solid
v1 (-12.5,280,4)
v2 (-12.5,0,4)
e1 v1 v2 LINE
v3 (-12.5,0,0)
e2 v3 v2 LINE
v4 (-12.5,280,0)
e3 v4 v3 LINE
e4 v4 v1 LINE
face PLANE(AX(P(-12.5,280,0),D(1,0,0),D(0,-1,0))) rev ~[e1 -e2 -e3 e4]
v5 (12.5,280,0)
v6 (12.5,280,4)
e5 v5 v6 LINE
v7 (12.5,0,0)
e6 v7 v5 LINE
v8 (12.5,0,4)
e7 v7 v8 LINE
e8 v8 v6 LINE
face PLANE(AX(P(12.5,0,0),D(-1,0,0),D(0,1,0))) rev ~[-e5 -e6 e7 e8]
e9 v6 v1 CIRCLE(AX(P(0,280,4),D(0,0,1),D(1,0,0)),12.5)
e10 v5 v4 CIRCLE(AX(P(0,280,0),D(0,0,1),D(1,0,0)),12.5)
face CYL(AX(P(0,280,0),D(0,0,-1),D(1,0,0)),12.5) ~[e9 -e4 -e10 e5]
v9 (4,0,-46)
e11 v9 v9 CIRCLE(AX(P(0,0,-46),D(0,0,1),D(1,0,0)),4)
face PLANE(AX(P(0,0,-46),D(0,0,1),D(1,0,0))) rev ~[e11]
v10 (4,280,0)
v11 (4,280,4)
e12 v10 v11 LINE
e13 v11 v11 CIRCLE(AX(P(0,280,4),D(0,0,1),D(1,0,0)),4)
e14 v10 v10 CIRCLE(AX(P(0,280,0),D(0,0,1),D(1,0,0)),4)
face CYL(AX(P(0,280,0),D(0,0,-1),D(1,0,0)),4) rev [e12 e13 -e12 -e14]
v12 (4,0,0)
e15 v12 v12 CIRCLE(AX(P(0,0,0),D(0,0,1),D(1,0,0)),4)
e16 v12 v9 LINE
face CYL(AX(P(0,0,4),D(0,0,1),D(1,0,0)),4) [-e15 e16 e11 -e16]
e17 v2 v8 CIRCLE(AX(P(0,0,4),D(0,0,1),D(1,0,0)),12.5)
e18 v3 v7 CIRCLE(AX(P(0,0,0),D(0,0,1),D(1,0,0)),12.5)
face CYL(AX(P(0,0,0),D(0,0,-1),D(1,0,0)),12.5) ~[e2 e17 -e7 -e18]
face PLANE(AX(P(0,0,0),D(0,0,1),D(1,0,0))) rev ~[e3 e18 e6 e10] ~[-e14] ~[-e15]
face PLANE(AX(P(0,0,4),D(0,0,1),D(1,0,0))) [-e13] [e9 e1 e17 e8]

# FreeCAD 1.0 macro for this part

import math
import FreeCAD as App
import Part
import Sketcher

doc = App.newDocument("Part")
params = doc.addObject("Spreadsheet::Sheet", "Params")
for row, (alias, value) in enumerate([
    ("sketch1_diameter", "8 mm"),
    ("sketch1_radius", "12.5 mm"),
    ("sketch1_height", "280 mm"),
    ("pad1_length", "4 mm"),
    ("sketch2_diameter", "8 mm"),
    ("pad2_length", "50 mm"),
], start=1):
    params.set(f"A{row}", alias)
    params.set(f"B{row}", "=" + value)
    params.setAlias(f"B{row}", alias)

body = doc.addObject("PartDesign::Body", "Body")

sketch1 = body.newObject("Sketcher::SketchObject", "Sketch")
sketch1.AttachmentSupport = (doc.getObject("XY_Plane"), [""])
sketch1.MapMode = "FlatFace"
sketch1.addGeometry(Part.ArcOfCircle(Part.Circle(App.Vector(0, 0, 0), App.Vector(0, 0, 1), 12.5), math.radians(180), math.radians(360)), False)
sketch1.addGeometry(Part.LineSegment(App.Vector(12.5, 0, 0), App.Vector(12.5, 280, 0)), False)
sketch1.addGeometry(Part.ArcOfCircle(Part.Circle(App.Vector(0, 280, 0), App.Vector(0, 0, 1), 12.5), math.radians(0), math.radians(180)), False)
sketch1.addGeometry(Part.LineSegment(App.Vector(-12.5, 280, 0), App.Vector(-12.5, 0, 0)), False)
sketch1.addGeometry(Part.Circle(App.Vector(0, 0, 0), App.Vector(0, 0, 1), 4), False)
sketch1.addGeometry(Part.Circle(App.Vector(0, 280, 0), App.Vector(0, 0, 1), 4), False)
sketch1.addConstraint(Sketcher.Constraint("Tangent", 0, 2, 1, 1))
sketch1.addConstraint(Sketcher.Constraint("Tangent", 1, 2, 2, 1))
sketch1.addConstraint(Sketcher.Constraint("Tangent", 2, 2, 3, 1))
sketch1.addConstraint(Sketcher.Constraint("Tangent", 3, 2, 0, 1))
sketch1.addConstraint(Sketcher.Constraint("Vertical", 1))
sketch1.addConstraint(Sketcher.Constraint("Vertical", 3))
sketch1.addConstraint(Sketcher.Constraint("Coincident", 0, 3, -1, 1))
sketch1.addConstraint(Sketcher.Constraint("Coincident", 4, 3, -1, 1))
sketch1.addConstraint(Sketcher.Constraint("Coincident", 5, 3, 2, 3))
sketch1.addConstraint(Sketcher.Constraint("Equal", 4, 5))
sketch1.addConstraint(Sketcher.Constraint("Diameter", 4, 8.0))
sketch1.addConstraint(Sketcher.Constraint("Radius", 0, 12.5))
sketch1.addConstraint(Sketcher.Constraint("DistanceY", 1, 1, 1, 2, 280.0))
sketch1.setExpression("Constraints[10]", "Params.sketch1_diameter")
sketch1.setExpression("Constraints[11]", "Params.sketch1_radius")
sketch1.setExpression("Constraints[12]", "Params.sketch1_height")
pad1 = body.newObject("PartDesign::Pad", "Pad")
pad1.Profile = sketch1
pad1.setExpression("Length", "Params.pad1_length")

sketch2 = body.newObject("Sketcher::SketchObject", "Sketch001")
sketch2.AttachmentSupport = (doc.getObject("XY_Plane"), [""])
sketch2.MapMode = "FlatFace"
sketch2.AttachmentOffset = App.Placement(App.Vector(0, 0, 4), App.Rotation())
sketch2.addGeometry(Part.Circle(App.Vector(0, 0, 0), App.Vector(0, 0, 1), 4), False)
sketch2.addConstraint(Sketcher.Constraint("Coincident", 0, 3, -1, 1))
sketch2.addConstraint(Sketcher.Constraint("Diameter", 0, 8.0))
sketch2.setExpression("Constraints[1]", "Params.sketch2_diameter")
pad2 = body.newObject("PartDesign::Pad", "Pad001")
pad2.Profile = sketch2
pad2.setExpression("Length", "Params.pad2_length")
pad2.Reversed = True

doc.recompute()
